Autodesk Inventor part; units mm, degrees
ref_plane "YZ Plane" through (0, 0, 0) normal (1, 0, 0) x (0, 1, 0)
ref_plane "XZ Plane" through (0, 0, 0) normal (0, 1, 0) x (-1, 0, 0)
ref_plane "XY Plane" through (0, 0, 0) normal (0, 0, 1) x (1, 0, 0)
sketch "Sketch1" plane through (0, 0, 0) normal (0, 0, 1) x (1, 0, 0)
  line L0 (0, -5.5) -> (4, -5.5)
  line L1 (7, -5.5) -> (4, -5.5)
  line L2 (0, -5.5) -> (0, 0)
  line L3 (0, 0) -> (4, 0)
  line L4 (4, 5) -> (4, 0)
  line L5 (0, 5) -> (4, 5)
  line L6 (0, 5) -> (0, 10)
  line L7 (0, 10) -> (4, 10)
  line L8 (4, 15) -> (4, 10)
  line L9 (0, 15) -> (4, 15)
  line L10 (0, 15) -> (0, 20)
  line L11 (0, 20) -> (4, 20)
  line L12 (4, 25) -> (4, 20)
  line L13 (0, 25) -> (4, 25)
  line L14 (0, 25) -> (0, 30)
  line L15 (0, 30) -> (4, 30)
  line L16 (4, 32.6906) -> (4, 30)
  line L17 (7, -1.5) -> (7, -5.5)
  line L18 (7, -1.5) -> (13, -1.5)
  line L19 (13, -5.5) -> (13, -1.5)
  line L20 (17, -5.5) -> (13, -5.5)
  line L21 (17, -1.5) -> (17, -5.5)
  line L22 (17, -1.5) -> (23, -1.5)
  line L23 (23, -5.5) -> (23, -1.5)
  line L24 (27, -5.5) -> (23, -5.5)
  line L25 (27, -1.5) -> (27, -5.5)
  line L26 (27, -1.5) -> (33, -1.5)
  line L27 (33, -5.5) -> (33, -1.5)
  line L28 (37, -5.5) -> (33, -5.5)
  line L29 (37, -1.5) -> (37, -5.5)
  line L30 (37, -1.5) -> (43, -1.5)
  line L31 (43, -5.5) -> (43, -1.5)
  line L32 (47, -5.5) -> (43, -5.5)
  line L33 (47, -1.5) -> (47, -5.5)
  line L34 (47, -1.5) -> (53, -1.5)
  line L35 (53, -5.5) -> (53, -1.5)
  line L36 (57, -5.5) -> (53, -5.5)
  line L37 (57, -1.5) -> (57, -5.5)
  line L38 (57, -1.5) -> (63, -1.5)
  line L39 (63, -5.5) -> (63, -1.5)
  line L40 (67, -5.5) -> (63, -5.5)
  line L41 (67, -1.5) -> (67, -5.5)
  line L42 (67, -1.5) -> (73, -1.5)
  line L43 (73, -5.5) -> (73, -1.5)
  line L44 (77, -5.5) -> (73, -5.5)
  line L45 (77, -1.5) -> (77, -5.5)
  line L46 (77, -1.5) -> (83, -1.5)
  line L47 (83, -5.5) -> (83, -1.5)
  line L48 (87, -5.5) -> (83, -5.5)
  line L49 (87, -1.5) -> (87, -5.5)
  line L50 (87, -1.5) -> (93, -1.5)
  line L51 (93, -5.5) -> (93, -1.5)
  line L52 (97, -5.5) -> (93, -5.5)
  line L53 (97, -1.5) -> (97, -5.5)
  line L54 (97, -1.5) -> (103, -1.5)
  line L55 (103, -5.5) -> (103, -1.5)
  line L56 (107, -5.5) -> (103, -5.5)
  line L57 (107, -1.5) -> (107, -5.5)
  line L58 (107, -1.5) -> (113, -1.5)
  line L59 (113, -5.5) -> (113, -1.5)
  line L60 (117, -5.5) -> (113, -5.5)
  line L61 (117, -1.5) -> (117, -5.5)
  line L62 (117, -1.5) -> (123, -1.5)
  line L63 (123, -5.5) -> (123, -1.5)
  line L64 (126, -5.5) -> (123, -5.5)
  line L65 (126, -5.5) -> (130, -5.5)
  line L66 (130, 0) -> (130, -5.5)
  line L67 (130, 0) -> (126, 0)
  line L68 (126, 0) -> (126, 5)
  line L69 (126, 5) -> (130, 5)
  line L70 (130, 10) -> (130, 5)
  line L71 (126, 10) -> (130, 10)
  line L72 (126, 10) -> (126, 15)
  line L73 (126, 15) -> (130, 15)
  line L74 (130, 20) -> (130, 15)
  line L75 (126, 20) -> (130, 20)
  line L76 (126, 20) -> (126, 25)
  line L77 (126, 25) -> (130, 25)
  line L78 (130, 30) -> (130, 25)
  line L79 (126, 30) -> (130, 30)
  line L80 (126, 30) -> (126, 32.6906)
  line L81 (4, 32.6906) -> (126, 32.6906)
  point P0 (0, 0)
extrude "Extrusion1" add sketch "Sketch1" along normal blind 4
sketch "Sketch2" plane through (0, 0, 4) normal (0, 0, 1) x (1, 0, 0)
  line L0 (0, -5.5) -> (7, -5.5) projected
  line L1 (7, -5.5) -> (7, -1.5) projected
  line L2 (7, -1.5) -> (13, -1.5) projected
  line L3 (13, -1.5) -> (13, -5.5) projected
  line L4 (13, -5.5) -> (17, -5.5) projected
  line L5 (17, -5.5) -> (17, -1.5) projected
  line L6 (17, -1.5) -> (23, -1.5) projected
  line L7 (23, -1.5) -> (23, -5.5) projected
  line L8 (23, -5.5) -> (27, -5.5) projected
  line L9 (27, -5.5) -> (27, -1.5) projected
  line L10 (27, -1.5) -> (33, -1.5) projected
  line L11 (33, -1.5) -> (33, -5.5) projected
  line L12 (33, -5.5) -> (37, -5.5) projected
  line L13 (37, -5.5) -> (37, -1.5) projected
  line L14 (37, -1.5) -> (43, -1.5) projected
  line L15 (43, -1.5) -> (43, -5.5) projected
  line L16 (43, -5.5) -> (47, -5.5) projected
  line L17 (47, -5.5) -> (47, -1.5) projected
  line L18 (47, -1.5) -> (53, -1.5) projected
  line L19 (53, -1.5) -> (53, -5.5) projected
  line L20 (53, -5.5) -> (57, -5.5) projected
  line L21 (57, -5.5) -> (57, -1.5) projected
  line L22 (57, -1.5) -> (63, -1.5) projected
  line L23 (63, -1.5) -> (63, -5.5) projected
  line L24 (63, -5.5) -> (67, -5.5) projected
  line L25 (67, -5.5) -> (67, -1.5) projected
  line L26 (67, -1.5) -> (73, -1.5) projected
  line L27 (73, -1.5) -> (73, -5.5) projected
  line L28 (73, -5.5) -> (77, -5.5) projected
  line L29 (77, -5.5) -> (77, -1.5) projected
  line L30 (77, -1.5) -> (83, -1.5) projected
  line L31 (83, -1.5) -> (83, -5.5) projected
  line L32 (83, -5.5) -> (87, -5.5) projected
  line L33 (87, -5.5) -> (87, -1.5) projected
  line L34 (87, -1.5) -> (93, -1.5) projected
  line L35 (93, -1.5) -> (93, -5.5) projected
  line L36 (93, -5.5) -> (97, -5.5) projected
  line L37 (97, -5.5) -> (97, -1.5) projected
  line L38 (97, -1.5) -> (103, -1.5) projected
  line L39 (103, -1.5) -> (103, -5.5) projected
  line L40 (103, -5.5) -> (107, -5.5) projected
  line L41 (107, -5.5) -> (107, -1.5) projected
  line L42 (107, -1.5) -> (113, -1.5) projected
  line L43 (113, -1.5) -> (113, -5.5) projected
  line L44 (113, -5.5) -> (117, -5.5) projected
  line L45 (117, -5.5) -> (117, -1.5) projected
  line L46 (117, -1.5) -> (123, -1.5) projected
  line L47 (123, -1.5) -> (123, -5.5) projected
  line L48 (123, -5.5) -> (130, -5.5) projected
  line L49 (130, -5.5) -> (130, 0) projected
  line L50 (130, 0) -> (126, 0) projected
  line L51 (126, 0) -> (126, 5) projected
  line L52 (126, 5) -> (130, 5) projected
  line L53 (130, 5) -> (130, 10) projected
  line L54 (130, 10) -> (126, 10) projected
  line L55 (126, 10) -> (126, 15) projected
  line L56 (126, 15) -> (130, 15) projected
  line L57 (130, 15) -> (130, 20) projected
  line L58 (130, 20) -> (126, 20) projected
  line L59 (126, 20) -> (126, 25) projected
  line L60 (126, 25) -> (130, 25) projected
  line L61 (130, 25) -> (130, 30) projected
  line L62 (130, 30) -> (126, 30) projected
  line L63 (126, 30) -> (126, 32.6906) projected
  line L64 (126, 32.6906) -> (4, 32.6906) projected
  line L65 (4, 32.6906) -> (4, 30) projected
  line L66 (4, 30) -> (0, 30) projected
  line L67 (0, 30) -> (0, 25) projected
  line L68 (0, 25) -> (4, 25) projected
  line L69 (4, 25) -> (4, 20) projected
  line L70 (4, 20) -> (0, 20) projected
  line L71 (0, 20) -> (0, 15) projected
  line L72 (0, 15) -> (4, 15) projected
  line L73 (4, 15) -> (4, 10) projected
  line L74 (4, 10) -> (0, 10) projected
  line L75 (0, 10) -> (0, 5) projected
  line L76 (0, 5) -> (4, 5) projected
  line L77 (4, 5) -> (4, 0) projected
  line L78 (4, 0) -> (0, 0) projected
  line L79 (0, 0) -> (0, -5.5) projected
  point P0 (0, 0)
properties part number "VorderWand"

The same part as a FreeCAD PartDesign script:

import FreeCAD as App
import Part
import Sketcher

V = App.Vector


def add_polygon(sketch, points):
    """Adds a closed chain of lines whose ends are joined by coincident constraints."""
    first, n = sketch.GeometryCount, len(points)
    for a, b in zip(points, points[1:] + points[:1]):
        sketch.addGeometry(Part.LineSegment(App.Vector(*a, 0), App.Vector(*b, 0)), False)
    for i in range(n):
        sketch.addConstraint(Sketcher.Constraint("Coincident", first + i, 2, first + (i + 1) % n, 1))

doc = App.newDocument("Part")
body = doc.addObject("PartDesign::Body", "Body")

# Sketch on XY plane
sketch1 = body.newObject("Sketcher::SketchObject", "Sketch")
sketch1.AttachmentSupport = (doc.getObject("XY_Plane"), [""])
sketch1.MapMode = "FlatFace"
add_polygon(sketch1, [(0, 0), (0, -5.5), (7, -5.5), (7, -1.5), (13, -1.5), (13, -5.5), (17, -5.5), (17, -1.5), (23, -1.5), (23, -5.5), (27, -5.5), (27, -1.5), (33, -1.5), (33, -5.5), (37, -5.5), (37, -1.5), (43, -1.5), (43, -5.5), (47, -5.5), (47, -1.5), (53, -1.5), (53, -5.5), (57, -5.5), (57, -1.5), (63, -1.5), (63, -5.5), (67, -5.5), (67, -1.5), (73, -1.5), (73, -5.5), (77, -5.5), (77, -1.5), (83, -1.5), (83, -5.5), (87, -5.5), (87, -1.5), (93, -1.5), (93, -5.5), (97, -5.5), (97, -1.5), (103, -1.5), (103, -5.5), (107, -5.5), (107, -1.5), (113, -1.5), (113, -5.5), (117, -5.5), (117, -1.5), (123, -1.5), (123, -5.5), (130, -5.5), (130, 0), (126, 0), (126, 5), (130, 5), (130, 10), (126, 10), (126, 15), (130, 15), (130, 20), (126, 20), (126, 25), (130, 25), (130, 30), (126, 30), (126, 32.7), (4, 32.7), (4, 30), (0, 30), (0, 25), (4, 25), (4, 20), (0, 20), (0, 15), (4, 15), (4, 10), (0, 10), (0, 5), (4, 5), (4, 0)])  # lines 0-79
sketch1.addConstraint([
    Sketcher.Constraint("Vertical", 0),
    Sketcher.Constraint("Horizontal", 1),
    Sketcher.Constraint("Vertical", 2),
    Sketcher.Constraint("Horizontal", 3),
    Sketcher.Constraint("Vertical", 4),
    Sketcher.Constraint("Horizontal", 5),
    Sketcher.Constraint("Vertical", 6),
    Sketcher.Constraint("Horizontal", 7),
    Sketcher.Constraint("Vertical", 8),
    Sketcher.Constraint("Horizontal", 9),
    Sketcher.Constraint("Vertical", 10),
    Sketcher.Constraint("Horizontal", 11),
    Sketcher.Constraint("Vertical", 12),
    Sketcher.Constraint("Horizontal", 13),
    Sketcher.Constraint("Vertical", 14),
    Sketcher.Constraint("Horizontal", 15),
    Sketcher.Constraint("Vertical", 16),
    Sketcher.Constraint("Horizontal", 17),
    Sketcher.Constraint("Vertical", 18),
    Sketcher.Constraint("Horizontal", 19),
    Sketcher.Constraint("Vertical", 20),
    Sketcher.Constraint("Horizontal", 21),
    Sketcher.Constraint("Vertical", 22),
    Sketcher.Constraint("Horizontal", 23),
    Sketcher.Constraint("Vertical", 24),
    Sketcher.Constraint("Horizontal", 25),
    Sketcher.Constraint("Vertical", 26),
    Sketcher.Constraint("Horizontal", 27),
    Sketcher.Constraint("Vertical", 28),
    Sketcher.Constraint("Horizontal", 29),
    Sketcher.Constraint("Vertical", 30),
    Sketcher.Constraint("Horizontal", 31),
    Sketcher.Constraint("Vertical", 32),
    Sketcher.Constraint("Horizontal", 33),
    Sketcher.Constraint("Vertical", 34),
    Sketcher.Constraint("Horizontal", 35),
    Sketcher.Constraint("Vertical", 36),
    Sketcher.Constraint("Horizontal", 37),
    Sketcher.Constraint("Vertical", 38),
    Sketcher.Constraint("Horizontal", 39),
    Sketcher.Constraint("Vertical", 40),
    Sketcher.Constraint("Horizontal", 41),
    Sketcher.Constraint("Vertical", 42),
    Sketcher.Constraint("Horizontal", 43),
    Sketcher.Constraint("Vertical", 44),
    Sketcher.Constraint("Horizontal", 45),
    Sketcher.Constraint("Vertical", 46),
    Sketcher.Constraint("Horizontal", 47),
    Sketcher.Constraint("Vertical", 48),
    Sketcher.Constraint("Horizontal", 49),
    Sketcher.Constraint("Vertical", 50),
    Sketcher.Constraint("Horizontal", 51),
    Sketcher.Constraint("Vertical", 52),
    Sketcher.Constraint("Horizontal", 53),
    Sketcher.Constraint("Vertical", 54),
    Sketcher.Constraint("Horizontal", 55),
    Sketcher.Constraint("Vertical", 56),
    Sketcher.Constraint("Horizontal", 57),
    Sketcher.Constraint("Vertical", 58),
    Sketcher.Constraint("Horizontal", 59),
    Sketcher.Constraint("Vertical", 60),
    Sketcher.Constraint("Horizontal", 61),
    Sketcher.Constraint("Vertical", 62),
    Sketcher.Constraint("Horizontal", 63),
    Sketcher.Constraint("Vertical", 64),
    Sketcher.Constraint("Horizontal", 65),
    Sketcher.Constraint("Vertical", 66),
    Sketcher.Constraint("Horizontal", 67),
    Sketcher.Constraint("Vertical", 68),
    Sketcher.Constraint("Horizontal", 69),
    Sketcher.Constraint("Vertical", 70),
    Sketcher.Constraint("Horizontal", 71),
    Sketcher.Constraint("Vertical", 72),
    Sketcher.Constraint("Horizontal", 73),
    Sketcher.Constraint("Vertical", 74),
    Sketcher.Constraint("Horizontal", 75),
    Sketcher.Constraint("Vertical", 76),
    Sketcher.Constraint("Horizontal", 77),
    Sketcher.Constraint("Vertical", 78),
    Sketcher.Constraint("Horizontal", 79),
    Sketcher.Constraint("Coincident", 79, 2, -1, 1),
    Sketcher.Constraint("PointOnObject", 50, 2, -1),
    Sketcher.Constraint("PointOnObject", 67, 2, -2),
    Sketcher.Constraint("PointOnObject", 71, 2, -2),
    Sketcher.Constraint("PointOnObject", 75, 2, -2),
    Sketcher.Constraint("Horizontal", 1, 2, 4, 2),
    Sketcher.Constraint("Horizontal", 3, 2, 6, 2),
    Sketcher.Constraint("Horizontal", 5, 2, 8, 2),
    Sketcher.Constraint("Horizontal", 7, 2, 10, 2),
    Sketcher.Constraint("Horizontal", 9, 2, 12, 2),
    Sketcher.Constraint("Horizontal", 11, 2, 14, 2),
    Sketcher.Constraint("Horizontal", 13, 2, 16, 2),
    Sketcher.Constraint("Horizontal", 15, 2, 18, 2),
    Sketcher.Constraint("Horizontal", 17, 2, 20, 2),
    Sketcher.Constraint("Horizontal", 19, 2, 22, 2),
    Sketcher.Constraint("Horizontal", 21, 2, 24, 2),
    Sketcher.Constraint("Horizontal", 23, 2, 26, 2),
    Sketcher.Constraint("Horizontal", 25, 2, 28, 2),
    Sketcher.Constraint("Horizontal", 27, 2, 30, 2),
    Sketcher.Constraint("Horizontal", 29, 2, 32, 2),
    Sketcher.Constraint("Horizontal", 31, 2, 34, 2),
    Sketcher.Constraint("Horizontal", 33, 2, 36, 2),
    Sketcher.Constraint("Horizontal", 35, 2, 38, 2),
    Sketcher.Constraint("Horizontal", 37, 2, 40, 2),
    Sketcher.Constraint("Horizontal", 39, 2, 42, 2),
    Sketcher.Constraint("Horizontal", 41, 2, 44, 2),
    Sketcher.Constraint("Horizontal", 43, 2, 46, 2),
    Sketcher.Constraint("Horizontal", 45, 2, 48, 2),
    Sketcher.Constraint("Horizontal", 63, 2, 66, 2),
    Sketcher.Constraint("Horizontal", 61, 2, 68, 2),
    Sketcher.Constraint("Horizontal", 59, 2, 70, 2),
    Sketcher.Constraint("Horizontal", 57, 2, 72, 2),
    Sketcher.Constraint("Horizontal", 55, 2, 74, 2),
    Sketcher.Constraint("Horizontal", 53, 2, 76, 2),
    Sketcher.Constraint("Vertical", 50, 2, 53, 2),
    Sketcher.Constraint("Vertical", 52, 2, 55, 2),
    Sketcher.Constraint("Vertical", 54, 2, 57, 2),
    Sketcher.Constraint("Vertical", 56, 2, 59, 2),
    Sketcher.Constraint("Vertical", 58, 2, 61, 2),
    Sketcher.Constraint("Vertical", 60, 2, 63, 2),
    Sketcher.Constraint("Vertical", 66, 2, 69, 2),
    Sketcher.Constraint("Vertical", 70, 2, 73, 2),
    Sketcher.Constraint("Vertical", 74, 2, 77, 2),
    Sketcher.Constraint("Equal", 3, 7),
    Sketcher.Constraint("Equal", 5, 9),
    Sketcher.Constraint("Equal", 7, 11),
    Sketcher.Constraint("Equal", 9, 13),
    Sketcher.Constraint("Equal", 11, 15),
    Sketcher.Constraint("Equal", 13, 17),
    Sketcher.Constraint("Equal", 15, 19),
    Sketcher.Constraint("Equal", 17, 21),
    Sketcher.Constraint("Equal", 19, 23),
    Sketcher.Constraint("Equal", 21, 25),
    Sketcher.Constraint("Equal", 23, 27),
    Sketcher.Constraint("Equal", 25, 29),
    Sketcher.Constraint("Equal", 27, 31),
    Sketcher.Constraint("Equal", 29, 33),
    Sketcher.Constraint("Equal", 31, 35),
    Sketcher.Constraint("Equal", 33, 37),
    Sketcher.Constraint("Equal", 35, 39),
    Sketcher.Constraint("Equal", 37, 41),
    Sketcher.Constraint("Equal", 39, 43),
    Sketcher.Constraint("Equal", 41, 45),
    Sketcher.Constraint("Equal", 43, 47),
    Sketcher.Constraint("Equal", 1, 49),
    Sketcher.Constraint("Equal", 45, 51),
    Sketcher.Constraint("Equal", 63, 67),
    Sketcher.Constraint("Equal", 79, 2),
    Sketcher.Constraint("Equal", 52, 54),
    Sketcher.Constraint("Equal", 54, 56),
    Sketcher.Constraint("Equal", 56, 58),
    Sketcher.Constraint("Equal", 58, 60),
    Sketcher.Constraint("Equal", 60, 62),
    Sketcher.Constraint("DistanceX", 1, 1, 1, 2, 7.0),
    Sketcher.Constraint("DistanceX", 3, 1, 3, 2, 6.0),
    Sketcher.Constraint("DistanceX", 5, 1, 5, 2, 4.0),
    Sketcher.Constraint("DistanceY", 52, 1, 52, 2, 5.0),
    Sketcher.Constraint("DistanceY", 0, 2, 0, 1, 5.5),
    Sketcher.Constraint("DistanceY", 64, 1, 64, 2, 2.6906),
])
pad1 = body.newObject("PartDesign::Pad", "Pad")
pad1.Profile = sketch1
pad1.Length = 4

doc.recompute()
